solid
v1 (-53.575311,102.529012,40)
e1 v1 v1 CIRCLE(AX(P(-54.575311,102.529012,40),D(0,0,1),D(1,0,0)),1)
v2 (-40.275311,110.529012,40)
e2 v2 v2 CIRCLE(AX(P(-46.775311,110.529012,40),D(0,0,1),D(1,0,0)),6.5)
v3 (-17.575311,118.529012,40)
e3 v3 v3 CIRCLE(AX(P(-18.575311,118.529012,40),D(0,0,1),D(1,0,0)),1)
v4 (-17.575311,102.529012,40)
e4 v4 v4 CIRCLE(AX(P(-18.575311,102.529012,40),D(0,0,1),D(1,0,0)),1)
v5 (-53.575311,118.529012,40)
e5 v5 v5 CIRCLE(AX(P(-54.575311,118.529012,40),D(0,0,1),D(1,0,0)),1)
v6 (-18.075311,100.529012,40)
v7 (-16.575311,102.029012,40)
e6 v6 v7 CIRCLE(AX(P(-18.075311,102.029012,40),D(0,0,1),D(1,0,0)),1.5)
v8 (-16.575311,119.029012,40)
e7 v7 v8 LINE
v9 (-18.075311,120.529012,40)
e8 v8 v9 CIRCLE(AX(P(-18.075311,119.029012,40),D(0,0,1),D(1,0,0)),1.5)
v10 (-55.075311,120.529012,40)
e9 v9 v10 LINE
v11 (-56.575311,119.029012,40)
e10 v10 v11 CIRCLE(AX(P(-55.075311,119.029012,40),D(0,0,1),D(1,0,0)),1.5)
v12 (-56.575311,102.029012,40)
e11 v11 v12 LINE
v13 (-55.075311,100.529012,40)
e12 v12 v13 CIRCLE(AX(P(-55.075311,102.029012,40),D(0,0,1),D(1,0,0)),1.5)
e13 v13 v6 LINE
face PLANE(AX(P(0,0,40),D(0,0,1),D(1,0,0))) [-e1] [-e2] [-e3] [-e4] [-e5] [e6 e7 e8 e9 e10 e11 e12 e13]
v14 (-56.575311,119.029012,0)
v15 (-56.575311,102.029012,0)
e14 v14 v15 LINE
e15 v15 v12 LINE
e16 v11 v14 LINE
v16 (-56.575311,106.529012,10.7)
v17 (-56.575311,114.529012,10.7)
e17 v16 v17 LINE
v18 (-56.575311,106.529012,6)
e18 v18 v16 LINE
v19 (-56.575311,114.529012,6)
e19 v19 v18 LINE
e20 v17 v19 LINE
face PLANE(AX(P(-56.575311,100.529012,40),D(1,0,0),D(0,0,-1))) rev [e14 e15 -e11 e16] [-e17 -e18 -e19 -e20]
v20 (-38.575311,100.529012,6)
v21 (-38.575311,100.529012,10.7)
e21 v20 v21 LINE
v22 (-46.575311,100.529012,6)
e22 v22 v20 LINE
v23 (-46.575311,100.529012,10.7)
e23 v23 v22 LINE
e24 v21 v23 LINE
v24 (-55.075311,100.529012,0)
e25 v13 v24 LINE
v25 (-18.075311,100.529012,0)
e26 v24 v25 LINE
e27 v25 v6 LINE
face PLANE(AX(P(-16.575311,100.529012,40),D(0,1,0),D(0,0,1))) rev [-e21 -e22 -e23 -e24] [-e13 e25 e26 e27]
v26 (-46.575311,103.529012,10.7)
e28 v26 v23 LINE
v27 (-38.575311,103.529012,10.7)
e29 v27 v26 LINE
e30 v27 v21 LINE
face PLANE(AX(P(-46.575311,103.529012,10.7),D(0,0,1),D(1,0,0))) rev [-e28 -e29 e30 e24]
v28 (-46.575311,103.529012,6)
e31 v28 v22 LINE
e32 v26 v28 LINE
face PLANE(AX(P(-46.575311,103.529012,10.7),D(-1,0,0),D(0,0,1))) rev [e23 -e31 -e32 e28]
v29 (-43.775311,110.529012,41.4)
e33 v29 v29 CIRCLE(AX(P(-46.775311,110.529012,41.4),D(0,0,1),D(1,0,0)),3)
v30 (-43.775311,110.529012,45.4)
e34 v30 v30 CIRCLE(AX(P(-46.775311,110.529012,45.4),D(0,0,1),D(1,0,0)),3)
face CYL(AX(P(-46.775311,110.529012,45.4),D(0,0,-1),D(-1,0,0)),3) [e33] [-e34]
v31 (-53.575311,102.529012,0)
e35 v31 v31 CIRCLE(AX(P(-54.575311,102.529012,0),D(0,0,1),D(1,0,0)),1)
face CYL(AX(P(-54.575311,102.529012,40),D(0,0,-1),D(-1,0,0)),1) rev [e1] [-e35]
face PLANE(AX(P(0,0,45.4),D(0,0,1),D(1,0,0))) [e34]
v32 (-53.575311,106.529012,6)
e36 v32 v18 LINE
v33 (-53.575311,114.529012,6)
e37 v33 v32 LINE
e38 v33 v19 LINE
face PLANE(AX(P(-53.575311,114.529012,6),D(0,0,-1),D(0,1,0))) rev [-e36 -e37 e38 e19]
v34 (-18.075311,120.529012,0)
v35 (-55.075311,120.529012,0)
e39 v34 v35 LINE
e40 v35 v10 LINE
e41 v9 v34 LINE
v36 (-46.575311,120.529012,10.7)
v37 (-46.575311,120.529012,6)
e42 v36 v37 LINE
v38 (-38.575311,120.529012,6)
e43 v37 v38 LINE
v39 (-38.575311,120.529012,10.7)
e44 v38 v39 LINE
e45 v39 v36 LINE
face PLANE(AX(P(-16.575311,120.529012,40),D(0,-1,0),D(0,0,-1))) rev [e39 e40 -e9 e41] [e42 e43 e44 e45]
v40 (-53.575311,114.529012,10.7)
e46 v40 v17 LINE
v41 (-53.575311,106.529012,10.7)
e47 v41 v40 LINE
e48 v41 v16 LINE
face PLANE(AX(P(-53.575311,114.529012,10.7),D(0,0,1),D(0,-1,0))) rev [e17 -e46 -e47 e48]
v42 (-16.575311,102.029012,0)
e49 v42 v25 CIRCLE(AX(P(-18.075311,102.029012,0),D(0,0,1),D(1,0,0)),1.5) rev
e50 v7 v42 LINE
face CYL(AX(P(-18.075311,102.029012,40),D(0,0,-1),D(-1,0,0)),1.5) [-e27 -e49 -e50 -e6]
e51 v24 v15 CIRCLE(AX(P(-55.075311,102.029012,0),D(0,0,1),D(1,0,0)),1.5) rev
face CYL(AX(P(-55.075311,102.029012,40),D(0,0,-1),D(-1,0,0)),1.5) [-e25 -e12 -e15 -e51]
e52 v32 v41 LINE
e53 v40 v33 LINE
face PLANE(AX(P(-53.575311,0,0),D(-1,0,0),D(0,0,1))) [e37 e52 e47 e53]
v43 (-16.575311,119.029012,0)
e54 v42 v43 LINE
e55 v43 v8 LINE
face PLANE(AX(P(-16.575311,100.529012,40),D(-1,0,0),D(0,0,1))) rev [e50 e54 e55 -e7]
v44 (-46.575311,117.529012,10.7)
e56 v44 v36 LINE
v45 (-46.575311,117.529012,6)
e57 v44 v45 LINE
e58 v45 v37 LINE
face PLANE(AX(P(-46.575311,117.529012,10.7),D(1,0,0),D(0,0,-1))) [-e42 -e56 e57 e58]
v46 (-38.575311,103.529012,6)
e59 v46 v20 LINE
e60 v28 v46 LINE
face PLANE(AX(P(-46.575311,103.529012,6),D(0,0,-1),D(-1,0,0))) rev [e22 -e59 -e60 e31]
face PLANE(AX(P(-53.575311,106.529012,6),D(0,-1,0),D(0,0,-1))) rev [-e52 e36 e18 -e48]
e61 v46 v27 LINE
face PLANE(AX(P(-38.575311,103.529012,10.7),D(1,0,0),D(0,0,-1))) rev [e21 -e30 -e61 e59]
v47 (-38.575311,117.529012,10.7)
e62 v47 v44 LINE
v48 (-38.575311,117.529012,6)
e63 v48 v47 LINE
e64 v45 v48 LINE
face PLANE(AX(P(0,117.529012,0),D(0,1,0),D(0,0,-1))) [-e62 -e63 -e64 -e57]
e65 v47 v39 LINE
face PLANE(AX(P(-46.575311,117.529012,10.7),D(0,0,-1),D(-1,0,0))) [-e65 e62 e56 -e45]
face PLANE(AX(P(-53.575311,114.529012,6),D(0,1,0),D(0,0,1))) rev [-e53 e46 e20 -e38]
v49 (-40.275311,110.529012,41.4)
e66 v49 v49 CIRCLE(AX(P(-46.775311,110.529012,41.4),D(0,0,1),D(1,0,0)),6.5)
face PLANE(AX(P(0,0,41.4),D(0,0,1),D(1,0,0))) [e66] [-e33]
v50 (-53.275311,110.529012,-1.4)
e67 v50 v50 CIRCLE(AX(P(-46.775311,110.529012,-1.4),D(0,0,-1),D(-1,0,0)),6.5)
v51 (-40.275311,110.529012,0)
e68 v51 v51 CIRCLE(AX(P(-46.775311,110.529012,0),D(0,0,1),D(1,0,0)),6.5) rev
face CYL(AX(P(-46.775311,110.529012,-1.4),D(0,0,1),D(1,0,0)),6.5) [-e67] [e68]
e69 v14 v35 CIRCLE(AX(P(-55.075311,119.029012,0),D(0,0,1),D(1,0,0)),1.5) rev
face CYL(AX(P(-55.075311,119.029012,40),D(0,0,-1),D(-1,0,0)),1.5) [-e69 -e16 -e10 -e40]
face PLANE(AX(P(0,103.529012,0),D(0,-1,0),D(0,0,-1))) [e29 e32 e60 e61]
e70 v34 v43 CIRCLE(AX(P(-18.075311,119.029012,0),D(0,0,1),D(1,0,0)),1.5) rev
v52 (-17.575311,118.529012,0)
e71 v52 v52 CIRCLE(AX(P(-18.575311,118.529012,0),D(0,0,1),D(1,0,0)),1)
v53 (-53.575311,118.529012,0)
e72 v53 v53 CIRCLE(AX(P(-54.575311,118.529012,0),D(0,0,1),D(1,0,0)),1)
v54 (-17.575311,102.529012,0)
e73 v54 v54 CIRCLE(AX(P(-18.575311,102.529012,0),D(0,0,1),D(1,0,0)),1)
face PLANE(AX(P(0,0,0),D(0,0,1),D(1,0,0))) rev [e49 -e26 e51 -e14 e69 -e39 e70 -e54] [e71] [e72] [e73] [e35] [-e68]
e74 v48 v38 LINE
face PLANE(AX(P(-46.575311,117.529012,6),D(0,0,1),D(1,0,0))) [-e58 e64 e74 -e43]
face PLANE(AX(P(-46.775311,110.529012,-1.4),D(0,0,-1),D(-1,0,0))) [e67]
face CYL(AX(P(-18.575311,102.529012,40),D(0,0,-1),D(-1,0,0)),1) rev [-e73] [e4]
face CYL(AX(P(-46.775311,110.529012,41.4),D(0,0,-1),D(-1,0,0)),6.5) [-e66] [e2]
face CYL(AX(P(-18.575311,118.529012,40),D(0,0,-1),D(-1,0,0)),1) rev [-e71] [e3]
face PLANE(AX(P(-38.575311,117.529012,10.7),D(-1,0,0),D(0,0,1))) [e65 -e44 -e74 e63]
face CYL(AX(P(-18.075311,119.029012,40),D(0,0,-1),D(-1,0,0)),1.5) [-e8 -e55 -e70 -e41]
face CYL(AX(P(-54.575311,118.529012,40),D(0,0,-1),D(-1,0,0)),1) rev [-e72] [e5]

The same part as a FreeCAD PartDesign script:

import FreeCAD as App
import Part
import Sketcher

V = App.Vector
Q = App.Units.Quantity


def edges_at(feature, points):
    """Names of the edges that pass closest to the given points."""
    edges = feature.Shape.Edges
    near = lambda p: min(range(len(edges)), key=lambda i: edges[i].distToShape(Part.Vertex(*p))[0])
    return sorted({f"Edge{near(p) + 1}" for p in points})

doc = App.newDocument("Part")
body = doc.addObject("PartDesign::Body", "Body")

# Sketch on XY plane
sketch1 = doc.addObject("Sketcher::SketchObject", "Sketch")
body.addObject(sketch1)
sketch1.AttachmentSupport = (doc.XY_Plane, [""])
sketch1.MapMode = "FlatFace"
sketch1.addGeometry([
    Part.LineSegment(V(-56.6, 120.5, 0), V(-56.6, 100.5, 0)),  # 0
    Part.LineSegment(V(-56.6, 100.5, 0), V(-16.6, 100.5, 0)),  # 1
    Part.LineSegment(V(-16.6, 100.5, 0), V(-16.6, 120.5, 0)),  # 2
    Part.LineSegment(V(-16.6, 120.5, 0), V(-56.6, 120.5, 0)),  # 3
    Part.Circle(V(-54.6, 102.5, 0), V(0, 0, 1), 1),  # 4
    Part.Circle(V(-18.6, 102.5, 0), V(0, 0, 1), 1),  # 5
    Part.Circle(V(-54.6, 118.5, 0), V(0, 0, 1), 1),  # 6
    Part.Circle(V(-18.6, 118.5, 0), V(0, 0, 1), 1),  # 7
], False)
sketch1.addConstraint([
    Sketcher.Constraint("Coincident", 0, 2, 1, 1),
    Sketcher.Constraint("Coincident", 1, 2, 2, 1),
    Sketcher.Constraint("Coincident", 2, 2, 3, 1),
    Sketcher.Constraint("Coincident", 3, 2, 0, 1),
    Sketcher.Constraint("Vertical", 0),
    Sketcher.Constraint("Horizontal", 1),
    Sketcher.Constraint("Vertical", 2),
    Sketcher.Constraint("Horizontal", 3),
    Sketcher.Constraint("Equal", 4, 5),
    Sketcher.Constraint("Equal", 5, 6),
    Sketcher.Constraint("Equal", 6, 7),
    Sketcher.Constraint("Horizontal", 4, 3, 5, 3),
    Sketcher.Constraint("Horizontal", 6, 3, 7, 3),
    Sketcher.Constraint("Vertical", 4, 3, 6, 3),
    Sketcher.Constraint("Vertical", 5, 3, 7, 3),
    Sketcher.Constraint("Diameter", 4, Q("2 mm")),
    Sketcher.Constraint("DistanceX", 1, 1, 1, 2, Q("40 mm")),
    Sketcher.Constraint("DistanceY", 0, 2, 0, 1, Q("20 mm")),
    Sketcher.Constraint("DistanceX", 4, 3, 5, 3, Q("36 mm")),
    Sketcher.Constraint("DistanceY", 4, 3, 6, 3, Q("16 mm")),
    Sketcher.Constraint("DistanceX", 0, 2, 4, 3, Q("2 mm")),
    Sketcher.Constraint("DistanceY", 0, 2, 4, 3, Q("2 mm")),
    Sketcher.Constraint("DistanceX", 4, 3, -1, 1, Q("54.575311 mm")),
    Sketcher.Constraint("DistanceY", -1, 1, 4, 3, Q("102.529012 mm")),
])
pad1 = doc.addObject("PartDesign::Pad", "Pad")
body.addObject(pad1)
pad1.Profile = sketch1
pad1.Length = 40
doc.recompute()

fillet = doc.addObject("PartDesign::Fillet", "Fillet")
body.addObject(fillet)
fillet.Base = (pad1, edges_at(pad1, [
    (-16.575, 100.529, 20),
    (-56.575, 100.529, 20),
    (-56.575, 120.529, 20),
    (-16.575, 120.529, 20),
]))
fillet.Radius = 1.5

# Sketch on XY plane
sketch2 = doc.addObject("Sketcher::SketchObject", "Sketch001")
body.addObject(sketch2)
sketch2.AttachmentSupport = (doc.XY_Plane, [""])
sketch2.MapMode = "FlatFace"
sketch2.AttachmentOffset = App.Placement(V(0, 0, 40), App.Rotation())
sketch2.addGeometry(Part.Circle(V(-47, 111, 0), V(0, 0, 1), 6), False)
sketch2.addConstraint([
    Sketcher.Constraint("Diameter", 0, Q("13 mm")),
    Sketcher.Constraint("DistanceX", 0, 3, -1, 1, Q("46.775311 mm")),
    Sketcher.Constraint("DistanceY", -1, 1, 0, 3, Q("110.529012 mm")),
])
pad2 = doc.addObject("PartDesign::Pad", "Pad001")
body.addObject(pad2)
pad2.Profile = sketch2
pad2.Length = 1.4

# Sketch on XY plane
sketch3 = doc.addObject("Sketcher::SketchObject", "Sketch002")
body.addObject(sketch3)
sketch3.AttachmentSupport = (doc.XY_Plane, [""])
sketch3.MapMode = "FlatFace"
sketch3.AttachmentOffset = App.Placement(V(0, 0, -1.4), App.Rotation())
sketch3.addGeometry(Part.Circle(V(-47, 111, 0), V(0, 0, 1), 6), False)
sketch3.addConstraint([
    Sketcher.Constraint("Diameter", 0, Q("13 mm")),
    Sketcher.Constraint("DistanceX", 0, 3, -1, 1, Q("46.775311 mm")),
    Sketcher.Constraint("DistanceY", -1, 1, 0, 3, Q("110.529012 mm")),
])
pad3 = doc.addObject("PartDesign::Pad", "Pad002")
body.addObject(pad3)
pad3.Profile = sketch3
pad3.Length = 1.4

# Sketch on XY plane
sketch4 = doc.addObject("Sketcher::SketchObject", "Sketch003")
body.addObject(sketch4)
sketch4.AttachmentSupport = (doc.XY_Plane, [""])
sketch4.MapMode = "FlatFace"
sketch4.AttachmentOffset = App.Placement(V(0, 0, 41.4), App.Rotation())
sketch4.addGeometry(Part.Circle(V(-46.8, 110.5, 0), V(0, 0, 1), 3), False)
sketch4.addConstraint([
    Sketcher.Constraint("Diameter", 0, Q("6 mm")),
    Sketcher.Constraint("DistanceX", 0, 3, -1, 1, Q("46.775311 mm")),
    Sketcher.Constraint("DistanceY", -1, 1, 0, 3, Q("110.529012 mm")),
])
pad4 = doc.addObject("PartDesign::Pad", "Pad003")
body.addObject(pad4)
pad4.Profile = sketch4
pad4.Length = 4

# Sketch on XZ plane
sketch5 = doc.addObject("Sketcher::SketchObject", "Sketch004")
body.addObject(sketch5)
sketch5.AttachmentSupport = (doc.XZ_Plane, [""])
sketch5.MapMode = "FlatFace"
sketch5.AttachmentOffset = App.Placement(V(0, 0, -100.529012), App.Rotation())
sketch5.addGeometry([
    Part.LineSegment(V(-46.6, 10.7, 0), V(-46.6, 6, 0)),
    Part.LineSegment(V(-46.6, 6, 0), V(-38.6, 6, 0)),
    Part.LineSegment(V(-38.6, 6, 0), V(-38.6, 10.7, 0)),
    Part.LineSegment(V(-38.6, 10.7, 0), V(-46.6, 10.7, 0)),
], False)
sketch5.addConstraint([
    Sketcher.Constraint("Coincident", 0, 2, 1, 1),
    Sketcher.Constraint("Coincident", 1, 2, 2, 1),
    Sketcher.Constraint("Coincident", 2, 2, 3, 1),
    Sketcher.Constraint("Coincident", 3, 2, 0, 1),
    Sketcher.Constraint("Vertical", 0),
    Sketcher.Constraint("Horizontal", 1),
    Sketcher.Constraint("Vertical", 2),
    Sketcher.Constraint("Horizontal", 3),
    Sketcher.Constraint("DistanceX", 1, 1, 1, 2, Q("8 mm")),
    Sketcher.Constraint("DistanceY", 0, 2, 0, 1, Q("4.7 mm")),
    Sketcher.Constraint("DistanceY", -1, 1, 0, 2, Q("6 mm")),
    Sketcher.Constraint("DistanceX", 0, 2, -1, 1, Q("46.575311 mm")),
])
pocket1 = doc.addObject("PartDesign::Pocket", "Pocket")
body.addObject(pocket1)
pocket1.Profile = sketch5
pocket1.Length = 3
doc.recompute()

datumplane = doc.addObject("PartDesign::Plane", "DatumPlane")
body.addObject(datumplane)
datumplane.AttachmentSupport = (doc.XZ_Plane, [""])
datumplane.MapMode = "FlatFace"
datumplane.AttachmentOffset = App.Placement(V(0, 0, -110.529012), App.Rotation())
mirrored = doc.addObject("PartDesign::Mirrored", "Mirrored")
body.addObject(mirrored)
mirrored.Originals = [pocket1]
mirrored.MirrorPlane = (datumplane, [""])
body.Tip = mirrored

# Sketch on YZ plane
sketch6 = doc.addObject("Sketcher::SketchObject", "Sketch005")
body.addObject(sketch6)
sketch6.AttachmentSupport = (doc.YZ_Plane, [""])
sketch6.MapMode = "FlatFace"
sketch6.AttachmentOffset = App.Placement(V(0, 0, -56.575311), App.Rotation())
sketch6.addGeometry([
    Part.LineSegment(V(114.5, 6, 0), V(106.5, 6, 0)),
    Part.LineSegment(V(106.5, 6, 0), V(106.5, 10.7, 0)),
    Part.LineSegment(V(106.5, 10.7, 0), V(114.5, 10.7, 0)),
    Part.LineSegment(V(114.5, 10.7, 0), V(114.5, 6, 0)),
], False)
sketch6.addConstraint([
    Sketcher.Constraint("Coincident", 0, 2, 1, 1),
    Sketcher.Constraint("Coincident", 1, 2, 2, 1),
    Sketcher.Constraint("Coincident", 2, 2, 3, 1),
    Sketcher.Constraint("Coincident", 3, 2, 0, 1),
    Sketcher.Constraint("Horizontal", 0),
    Sketcher.Constraint("Vertical", 1),
    Sketcher.Constraint("Horizontal", 2),
    Sketcher.Constraint("Vertical", 3),
    Sketcher.Constraint("DistanceX", 0, 2, 0, 1, Q("8 mm")),
    Sketcher.Constraint("DistanceY", 1, 1, 1, 2, Q("4.7 mm")),
    Sketcher.Constraint("DistanceY", -1, 1, 0, 2, Q("6 mm")),
    Sketcher.Constraint("DistanceX", -1, 1, 0, 2, Q("106.529012 mm")),
])
pocket2 = doc.addObject("PartDesign::Pocket", "Pocket001")
body.addObject(pocket2)
pocket2.Profile = sketch6
pocket2.Length = 3
pocket2.Reversed = True

doc.recompute()
